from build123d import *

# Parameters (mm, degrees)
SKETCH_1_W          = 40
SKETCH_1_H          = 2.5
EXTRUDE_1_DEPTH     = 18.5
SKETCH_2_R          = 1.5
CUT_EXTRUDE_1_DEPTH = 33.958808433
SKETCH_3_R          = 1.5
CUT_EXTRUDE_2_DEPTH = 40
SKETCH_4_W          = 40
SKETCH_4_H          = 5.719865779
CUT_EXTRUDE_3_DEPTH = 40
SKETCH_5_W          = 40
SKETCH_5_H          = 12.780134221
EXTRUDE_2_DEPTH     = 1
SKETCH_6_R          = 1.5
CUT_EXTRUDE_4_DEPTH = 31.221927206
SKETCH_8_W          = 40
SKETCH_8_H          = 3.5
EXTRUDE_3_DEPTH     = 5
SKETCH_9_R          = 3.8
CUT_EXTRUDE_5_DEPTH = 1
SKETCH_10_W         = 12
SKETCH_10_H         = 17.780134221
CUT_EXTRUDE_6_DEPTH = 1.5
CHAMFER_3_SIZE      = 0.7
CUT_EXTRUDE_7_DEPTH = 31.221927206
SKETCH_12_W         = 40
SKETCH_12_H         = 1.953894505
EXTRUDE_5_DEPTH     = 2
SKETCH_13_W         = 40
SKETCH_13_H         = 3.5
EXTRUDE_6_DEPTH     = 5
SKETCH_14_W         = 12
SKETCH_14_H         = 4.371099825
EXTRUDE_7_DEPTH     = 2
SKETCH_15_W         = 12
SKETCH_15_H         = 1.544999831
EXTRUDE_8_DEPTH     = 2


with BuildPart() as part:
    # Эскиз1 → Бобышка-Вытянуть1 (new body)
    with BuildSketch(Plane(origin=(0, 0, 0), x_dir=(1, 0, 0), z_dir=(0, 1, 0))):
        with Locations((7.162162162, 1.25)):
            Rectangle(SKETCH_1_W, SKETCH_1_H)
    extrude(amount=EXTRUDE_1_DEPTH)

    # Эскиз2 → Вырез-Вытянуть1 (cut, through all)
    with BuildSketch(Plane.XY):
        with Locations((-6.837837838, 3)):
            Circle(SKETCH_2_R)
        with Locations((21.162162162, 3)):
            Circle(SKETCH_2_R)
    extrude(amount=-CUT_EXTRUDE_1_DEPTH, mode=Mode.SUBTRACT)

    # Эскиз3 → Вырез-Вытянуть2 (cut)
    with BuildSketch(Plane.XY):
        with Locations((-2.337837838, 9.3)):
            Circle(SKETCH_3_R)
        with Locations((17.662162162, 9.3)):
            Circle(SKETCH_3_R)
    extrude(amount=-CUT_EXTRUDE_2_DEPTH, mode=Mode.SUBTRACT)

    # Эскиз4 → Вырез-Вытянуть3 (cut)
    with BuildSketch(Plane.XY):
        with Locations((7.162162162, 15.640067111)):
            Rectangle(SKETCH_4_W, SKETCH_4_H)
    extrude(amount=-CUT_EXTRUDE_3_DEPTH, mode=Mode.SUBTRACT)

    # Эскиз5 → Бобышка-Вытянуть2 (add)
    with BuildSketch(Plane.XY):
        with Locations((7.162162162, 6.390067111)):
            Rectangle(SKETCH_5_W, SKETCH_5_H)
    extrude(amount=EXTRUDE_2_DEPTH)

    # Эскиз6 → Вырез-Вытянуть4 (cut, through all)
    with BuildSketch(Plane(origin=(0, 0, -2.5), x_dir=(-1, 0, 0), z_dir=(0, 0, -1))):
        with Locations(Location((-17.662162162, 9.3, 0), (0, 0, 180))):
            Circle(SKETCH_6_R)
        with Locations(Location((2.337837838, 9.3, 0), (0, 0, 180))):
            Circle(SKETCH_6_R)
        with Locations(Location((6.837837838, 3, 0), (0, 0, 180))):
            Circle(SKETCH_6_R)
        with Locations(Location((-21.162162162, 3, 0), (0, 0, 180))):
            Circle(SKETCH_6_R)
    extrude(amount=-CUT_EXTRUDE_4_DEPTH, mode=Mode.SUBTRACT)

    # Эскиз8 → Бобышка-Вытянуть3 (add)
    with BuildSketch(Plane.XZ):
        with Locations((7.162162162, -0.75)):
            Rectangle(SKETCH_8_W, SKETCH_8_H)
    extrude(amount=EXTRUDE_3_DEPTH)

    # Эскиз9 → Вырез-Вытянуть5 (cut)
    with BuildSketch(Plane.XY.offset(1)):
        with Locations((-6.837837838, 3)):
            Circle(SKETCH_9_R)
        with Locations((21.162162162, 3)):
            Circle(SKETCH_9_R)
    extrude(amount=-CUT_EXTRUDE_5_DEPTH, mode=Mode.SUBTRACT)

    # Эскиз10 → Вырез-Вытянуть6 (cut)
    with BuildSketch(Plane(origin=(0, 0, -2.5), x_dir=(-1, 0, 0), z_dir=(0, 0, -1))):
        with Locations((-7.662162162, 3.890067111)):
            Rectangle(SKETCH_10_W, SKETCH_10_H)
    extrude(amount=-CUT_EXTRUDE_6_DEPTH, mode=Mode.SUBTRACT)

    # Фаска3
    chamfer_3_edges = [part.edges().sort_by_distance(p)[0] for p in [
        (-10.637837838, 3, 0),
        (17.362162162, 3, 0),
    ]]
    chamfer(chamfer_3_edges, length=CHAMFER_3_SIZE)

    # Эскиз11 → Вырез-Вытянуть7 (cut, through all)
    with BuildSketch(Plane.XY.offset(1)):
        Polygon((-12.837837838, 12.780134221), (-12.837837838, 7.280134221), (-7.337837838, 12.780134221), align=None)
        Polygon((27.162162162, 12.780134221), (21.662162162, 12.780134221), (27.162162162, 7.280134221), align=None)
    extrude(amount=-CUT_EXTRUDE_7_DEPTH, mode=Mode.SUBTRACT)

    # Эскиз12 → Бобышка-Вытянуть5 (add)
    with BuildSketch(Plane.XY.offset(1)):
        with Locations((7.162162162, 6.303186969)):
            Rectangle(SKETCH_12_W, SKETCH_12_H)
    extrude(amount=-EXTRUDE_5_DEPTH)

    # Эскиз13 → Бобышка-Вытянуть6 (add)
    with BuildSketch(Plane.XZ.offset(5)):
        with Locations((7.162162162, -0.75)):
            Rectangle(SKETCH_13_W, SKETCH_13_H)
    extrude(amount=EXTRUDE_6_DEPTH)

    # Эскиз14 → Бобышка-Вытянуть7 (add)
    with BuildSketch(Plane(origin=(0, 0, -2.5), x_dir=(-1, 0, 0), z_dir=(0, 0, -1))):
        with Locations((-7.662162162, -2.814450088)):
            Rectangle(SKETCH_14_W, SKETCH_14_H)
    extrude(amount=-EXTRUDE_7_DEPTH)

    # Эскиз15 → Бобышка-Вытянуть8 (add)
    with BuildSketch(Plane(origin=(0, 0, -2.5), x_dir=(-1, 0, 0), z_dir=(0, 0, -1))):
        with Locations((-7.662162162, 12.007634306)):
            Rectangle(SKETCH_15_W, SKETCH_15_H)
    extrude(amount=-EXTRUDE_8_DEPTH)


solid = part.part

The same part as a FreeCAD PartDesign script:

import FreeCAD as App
import Part
import Sketcher

V = App.Vector


def edges_at(feature, points):
    """Names of the edges that pass closest to the given points."""
    edges = feature.Shape.Edges
    near = lambda p: min(range(len(edges)), key=lambda i: edges[i].distToShape(Part.Vertex(*p))[0])
    return sorted({f"Edge{near(p) + 1}" for p in points})

doc = App.newDocument("Part")
body = doc.addObject("PartDesign::Body", "Body")

# Sketch on XZ plane
sketch1 = body.newObject("Sketcher::SketchObject", "Sketch")
sketch1.AttachmentSupport = (doc.getObject("XZ_Plane"), [""])
sketch1.MapMode = "FlatFace"
sketch1.addGeometry(Part.LineSegment(V(-12.8, -2.5, 0), V(-12.8, 0, 0)), False)
sketch1.addGeometry(Part.LineSegment(V(-12.8, 0, 0), V(27.2, 0, 0)), False)
sketch1.addGeometry(Part.LineSegment(V(27.2, 0, 0), V(27.2, -2.5, 0)), False)
sketch1.addGeometry(Part.LineSegment(V(27.2, -2.5, 0), V(-12.8, -2.5, 0)), False)
sketch1.addConstraint(Sketcher.Constraint("Coincident", 0, 2, 1, 1))
sketch1.addConstraint(Sketcher.Constraint("Coincident", 1, 2, 2, 1))
sketch1.addConstraint(Sketcher.Constraint("Coincident", 2, 2, 3, 1))
sketch1.addConstraint(Sketcher.Constraint("Coincident", 3, 2, 0, 1))
sketch1.addConstraint(Sketcher.Constraint("Vertical", 0))
sketch1.addConstraint(Sketcher.Constraint("Horizontal", 1))
sketch1.addConstraint(Sketcher.Constraint("Vertical", 2))
sketch1.addConstraint(Sketcher.Constraint("Horizontal", 3))
sketch1.addConstraint(Sketcher.Constraint("PointOnObject", 0, 2, -1))
sketch1.addConstraint(Sketcher.Constraint("DistanceX", 1, 1, 1, 2, 40.0))
sketch1.addConstraint(Sketcher.Constraint("DistanceY", 0, 1, 0, 2, 2.5))
sketch1.addConstraint(Sketcher.Constraint("DistanceX", 0, 2, -1, 1, 12.837838))
pad1 = body.newObject("PartDesign::Pad", "Pad")
pad1.Profile = sketch1
pad1.Length = 18.5
pad1.Reversed = True

# Sketch on XY plane
sketch2 = body.newObject("Sketcher::SketchObject", "Sketch001")
sketch2.AttachmentSupport = (doc.getObject("XY_Plane"), [""])
sketch2.MapMode = "FlatFace"
sketch2.addGeometry(Part.Circle(V(-6.8, 3, 0), V(0, 0, 1), 1.5), False)
sketch2.addGeometry(Part.Circle(V(21.2, 3, 0), V(0, 0, 1), 1.5), False)
sketch2.addConstraint(Sketcher.Constraint("Equal", 0, 1))
sketch2.addConstraint(Sketcher.Constraint("Horizontal", 0, 3, 1, 3))
sketch2.addConstraint(Sketcher.Constraint("Diameter", 0, 3.0))
sketch2.addConstraint(Sketcher.Constraint("DistanceY", -1, 1, 0, 3, 3.0))
sketch2.addConstraint(Sketcher.Constraint("DistanceX", 0, 3, 1, 3, 28.0))
sketch2.addConstraint(Sketcher.Constraint("DistanceX", 0, 3, -1, 1, 6.837838))
pocket1 = body.newObject("PartDesign::Pocket", "Pocket")
pocket1.Profile = sketch2
pocket1.Type = "ThroughAll"

# Sketch on XY plane
sketch3 = body.newObject("Sketcher::SketchObject", "Sketch002")
sketch3.AttachmentSupport = (doc.getObject("XY_Plane"), [""])
sketch3.MapMode = "FlatFace"
sketch3.addGeometry(Part.Circle(V(-2.3, 9.3, 0), V(0, 0, 1), 1.5), False)
sketch3.addGeometry(Part.Circle(V(17.7, 9.3, 0), V(0, 0, 1), 1.5), False)
sketch3.addConstraint(Sketcher.Constraint("Equal", 0, 1))
sketch3.addConstraint(Sketcher.Constraint("Horizontal", 0, 3, 1, 3))
sketch3.addConstraint(Sketcher.Constraint("Diameter", 0, 3.0))
sketch3.addConstraint(Sketcher.Constraint("DistanceX", 0, 3, 1, 3, 20.0))
sketch3.addConstraint(Sketcher.Constraint("DistanceY", -1, 1, 0, 3, 9.3))
sketch3.addConstraint(Sketcher.Constraint("DistanceX", 0, 3, -1, 1, 2.337838))
pocket2 = body.newObject("PartDesign::Pocket", "Pocket001")
pocket2.Profile = sketch3
pocket2.Length = 40

# Sketch on XY plane
sketch4 = body.newObject("Sketcher::SketchObject", "Sketch003")
sketch4.AttachmentSupport = (doc.getObject("XY_Plane"), [""])
sketch4.MapMode = "FlatFace"
sketch4.addGeometry(Part.LineSegment(V(-13, 19, 0), V(-13, 13, 0)), False)
sketch4.addGeometry(Part.LineSegment(V(-13, 13, 0), V(27, 13, 0)), False)
sketch4.addGeometry(Part.LineSegment(V(27, 13, 0), V(27, 19, 0)), False)
sketch4.addGeometry(Part.LineSegment(V(27, 19, 0), V(-13, 19, 0)), False)
sketch4.addConstraint(Sketcher.Constraint("Coincident", 0, 2, 1, 1))
sketch4.addConstraint(Sketcher.Constraint("Coincident", 1, 2, 2, 1))
sketch4.addConstraint(Sketcher.Constraint("Coincident", 2, 2, 3, 1))
sketch4.addConstraint(Sketcher.Constraint("Coincident", 3, 2, 0, 1))
sketch4.addConstraint(Sketcher.Constraint("Vertical", 0))
sketch4.addConstraint(Sketcher.Constraint("Horizontal", 1))
sketch4.addConstraint(Sketcher.Constraint("Vertical", 2))
sketch4.addConstraint(Sketcher.Constraint("Horizontal", 3))
sketch4.addConstraint(Sketcher.Constraint("DistanceX", 1, 1, 1, 2, 40.0))
sketch4.addConstraint(Sketcher.Constraint("DistanceY", -1, 1, 2, 2, 18.5))
sketch4.addConstraint(Sketcher.Constraint("DistanceY", 0, 2, 0, 1, 5.719866))
sketch4.addConstraint(Sketcher.Constraint("DistanceX", 0, 2, -1, 1, 12.837838))
pocket3 = body.newObject("PartDesign::Pocket", "Pocket002")
pocket3.Profile = sketch4
pocket3.Length = 40

# Sketch on XY plane
sketch5 = body.newObject("Sketcher::SketchObject", "Sketch004")
sketch5.AttachmentSupport = (doc.getObject("XY_Plane"), [""])
sketch5.MapMode = "FlatFace"
sketch5.addGeometry(Part.LineSegment(V(-13, 13, 0), V(-13, 0, 0)), False)
sketch5.addGeometry(Part.LineSegment(V(-13, 0, 0), V(27, 0, 0)), False)
sketch5.addGeometry(Part.LineSegment(V(27, 0, 0), V(27, 13, 0)), False)
sketch5.addGeometry(Part.LineSegment(V(27, 13, 0), V(-13, 13, 0)), False)
sketch5.addConstraint(Sketcher.Constraint("Coincident", 0, 2, 1, 1))
sketch5.addConstraint(Sketcher.Constraint("Coincident", 1, 2, 2, 1))
sketch5.addConstraint(Sketcher.Constraint("Coincident", 2, 2, 3, 1))
sketch5.addConstraint(Sketcher.Constraint("Coincident", 3, 2, 0, 1))
sketch5.addConstraint(Sketcher.Constraint("Vertical", 0))
sketch5.addConstraint(Sketcher.Constraint("Horizontal", 1))
sketch5.addConstraint(Sketcher.Constraint("Vertical", 2))
sketch5.addConstraint(Sketcher.Constraint("Horizontal", 3))
sketch5.addConstraint(Sketcher.Constraint("PointOnObject", 0, 2, -1))
sketch5.addConstraint(Sketcher.Constraint("DistanceX", 1, 1, 1, 2, 40.0))
sketch5.addConstraint(Sketcher.Constraint("DistanceY", 0, 2, 0, 1, 12.780134))
sketch5.addConstraint(Sketcher.Constraint("DistanceX", 0, 2, -1, 1, 12.837838))
pad2 = body.newObject("PartDesign::Pad", "Pad001")
pad2.Profile = sketch5
pad2.Length = 1

# Sketch on XY plane
sketch6 = body.newObject("Sketcher::SketchObject", "Sketch005")
sketch6.AttachmentSupport = (doc.getObject("XY_Plane"), [""])
sketch6.MapMode = "FlatFace"
sketch6.AttachmentOffset = App.Placement(V(0, 0, -2.5), App.Rotation())
sketch6.addGeometry(Part.Circle(V(17.7, 9.3, 0), V(0, 0, 1), 1.5), False)
sketch6.addGeometry(Part.Circle(V(-2.3, 9.3, 0), V(0, 0, 1), 1.5), False)
sketch6.addGeometry(Part.Circle(V(-6.8, 3, 0), V(0, 0, 1), 1.5), False)
sketch6.addGeometry(Part.Circle(V(21.2, 3, 0), V(0, 0, 1), 1.5), False)
sketch6.addConstraint(Sketcher.Constraint("Equal", 0, 1))
sketch6.addConstraint(Sketcher.Constraint("Equal", 1, 2))
sketch6.addConstraint(Sketcher.Constraint("Equal", 2, 3))
sketch6.addConstraint(Sketcher.Constraint("Horizontal", 0, 3, 1, 3))
sketch6.addConstraint(Sketcher.Constraint("Horizontal", 2, 3, 3, 3))
sketch6.addConstraint(Sketcher.Constraint("Diameter", 0, 3.0))
sketch6.addConstraint(Sketcher.Constraint("DistanceY", -1, 1, 2, 3, 3.0))
sketch6.addConstraint(Sketcher.Constraint("DistanceX", 1, 3, 0, 3, 20.0))
sketch6.addConstraint(Sketcher.Constraint("DistanceX", 2, 3, 3, 3, 28.0))
sketch6.addConstraint(Sketcher.Constraint("DistanceY", -1, 1, 0, 3, 9.3))
sketch6.addConstraint(Sketcher.Constraint("DistanceX", 2, 3, 1, 3, 4.5))
sketch6.addConstraint(Sketcher.Constraint("DistanceX", -1, 1, 0, 3, 17.662162))
pocket4 = body.newObject("PartDesign::Pocket", "Pocket003")
pocket4.Profile = sketch6
pocket4.Type = "ThroughAll"
pocket4.Reversed = True

# Sketch on XZ plane
sketch7 = body.newObject("Sketcher::SketchObject", "Sketch006")
sketch7.AttachmentSupport = (doc.getObject("XZ_Plane"), [""])
sketch7.MapMode = "FlatFace"
sketch7.addGeometry(Part.LineSegment(V(-12.8, 1, 0), V(-12.8, -2.5, 0)), False)
sketch7.addGeometry(Part.LineSegment(V(-12.8, -2.5, 0), V(27.2, -2.5, 0)), False)
sketch7.addGeometry(Part.LineSegment(V(27.2, -2.5, 0), V(27.2, 1, 0)), False)
sketch7.addGeometry(Part.LineSegment(V(27.2, 1, 0), V(-12.8, 1, 0)), False)
sketch7.addConstraint(Sketcher.Constraint("Coincident", 0, 2, 1, 1))
sketch7.addConstraint(Sketcher.Constraint("Coincident", 1, 2, 2, 1))
sketch7.addConstraint(Sketcher.Constraint("Coincident", 2, 2, 3, 1))
sketch7.addConstraint(Sketcher.Constraint("Coincident", 3, 2, 0, 1))
sketch7.addConstraint(Sketcher.Constraint("Vertical", 0))
sketch7.addConstraint(Sketcher.Constraint("Horizontal", 1))
sketch7.addConstraint(Sketcher.Constraint("Vertical", 2))
sketch7.addConstraint(Sketcher.Constraint("Horizontal", 3))
sketch7.addConstraint(Sketcher.Constraint("DistanceX", 1, 1, 1, 2, 40.0))
sketch7.addConstraint(Sketcher.Constraint("DistanceY", 0, 2, 0, 1, 3.5))
sketch7.addConstraint(Sketcher.Constraint("DistanceY", -1, 1, 2, 2, 1.0))
sketch7.addConstraint(Sketcher.Constraint("DistanceX", 0, 2, -1, 1, 12.837838))
pad3 = body.newObject("PartDesign::Pad", "Pad002")
pad3.Profile = sketch7
pad3.Length = 5

# Sketch on XY plane
sketch8 = body.newObject("Sketcher::SketchObject", "Sketch007")
sketch8.AttachmentSupport = (doc.getObject("XY_Plane"), [""])
sketch8.MapMode = "FlatFace"
sketch8.AttachmentOffset = App.Placement(V(0, 0, 1), App.Rotation())
sketch8.addGeometry(Part.Circle(V(-6.8, 3, 0), V(0, 0, 1), 3.8), False)
sketch8.addGeometry(Part.Circle(V(21.2, 3, 0), V(0, 0, 1), 3.8), False)
sketch8.addConstraint(Sketcher.Constraint("Equal", 0, 1))
sketch8.addConstraint(Sketcher.Constraint("Horizontal", 0, 3, 1, 3))
sketch8.addConstraint(Sketcher.Constraint("Diameter", 0, 7.6))
sketch8.addConstraint(Sketcher.Constraint("DistanceY", -1, 1, 0, 3, 3.0))
sketch8.addConstraint(Sketcher.Constraint("DistanceX", 0, 3, 1, 3, 28.0))
sketch8.addConstraint(Sketcher.Constraint("DistanceX", 0, 3, -1, 1, 6.837838))
pocket5 = body.newObject("PartDesign::Pocket", "Pocket004")
pocket5.Profile = sketch8
pocket5.Length = 1

# Sketch on XY plane
sketch9 = body.newObject("Sketcher::SketchObject", "Sketch008")
sketch9.AttachmentSupport = (doc.getObject("XY_Plane"), [""])
sketch9.MapMode = "FlatFace"
sketch9.AttachmentOffset = App.Placement(V(0, 0, -2.5), App.Rotation())
sketch9.addGeometry(Part.LineSegment(V(14, 13, 0), V(14, -5, 0)), False)
sketch9.addGeometry(Part.LineSegment(V(14, -5, 0), V(2, -5, 0)), False)
sketch9.addGeometry(Part.LineSegment(V(2, -5, 0), V(2, 13, 0)), False)
sketch9.addGeometry(Part.LineSegment(V(2, 13, 0), V(14, 13, 0)), False)
sketch9.addConstraint(Sketcher.Constraint("Coincident", 0, 2, 1, 1))
sketch9.addConstraint(Sketcher.Constraint("Coincident", 1, 2, 2, 1))
sketch9.addConstraint(Sketcher.Constraint("Coincident", 2, 2, 3, 1))
sketch9.addConstraint(Sketcher.Constraint("Coincident", 3, 2, 0, 1))
sketch9.addConstraint(Sketcher.Constraint("Vertical", 0))
sketch9.addConstraint(Sketcher.Constraint("Horizontal", 1))
sketch9.addConstraint(Sketcher.Constraint("Vertical", 2))
sketch9.addConstraint(Sketcher.Constraint("Horizontal", 3))
sketch9.addConstraint(Sketcher.Constraint("DistanceX", 1, 2, 1, 1, 12.0))
sketch9.addConstraint(Sketcher.Constraint("DistanceY", 0, 2, -1, 1, 5.0))
sketch9.addConstraint(Sketcher.Constraint("DistanceY", 0, 2, 0, 1, 17.780134))
sketch9.addConstraint(Sketcher.Constraint("DistanceX", -1, 1, 0, 2, 13.662162))
pocket6 = body.newObject("PartDesign::Pocket", "Pocket005")
pocket6.Profile = sketch9
pocket6.Length = 1.5
pocket6.Reversed = True
doc.recompute()

chamfer = body.newObject("PartDesign::Chamfer", "Chamfer")
chamfer.Base = (pocket6, edges_at(pocket6, [(-10.638, 3, 0), (17.362, 3, 0)]))
chamfer.Size = 0.7

# Sketch on XY plane
sketch10 = body.newObject("Sketcher::SketchObject", "Sketch009")
sketch10.AttachmentSupport = (doc.getObject("XY_Plane"), [""])
sketch10.MapMode = "FlatFace"
sketch10.AttachmentOffset = App.Placement(V(0, 0, 1), App.Rotation())
sketch10.addGeometry(Part.LineSegment(V(-13, 13, 0), V(-13, 7, 0)), False)
sketch10.addGeometry(Part.LineSegment(V(-13, 7, 0), V(-7, 13, 0)), False)
sketch10.addGeometry(Part.LineSegment(V(-7, 13, 0), V(-13, 13, 0)), False)
sketch10.addGeometry(Part.LineSegment(V(27, 13, 0), V(22, 13, 0)), False)
sketch10.addGeometry(Part.LineSegment(V(22, 13, 0), V(27, 7, 0)), False)
sketch10.addGeometry(Part.LineSegment(V(27, 7, 0), V(27, 13, 0)), False)
sketch10.addConstraint(Sketcher.Constraint("Coincident", 0, 2, 1, 1))
sketch10.addConstraint(Sketcher.Constraint("Coincident", 1, 2, 2, 1))
sketch10.addConstraint(Sketcher.Constraint("Coincident", 2, 2, 0, 1))
sketch10.addConstraint(Sketcher.Constraint("Coincident", 3, 2, 4, 1))
sketch10.addConstraint(Sketcher.Constraint("Coincident", 4, 2, 5, 1))
sketch10.addConstraint(Sketcher.Constraint("Coincident", 5, 2, 3, 1))
sketch10.addConstraint(Sketcher.Constraint("Vertical", 0))
sketch10.addConstraint(Sketcher.Constraint("Horizontal", 2))
sketch10.addConstraint(Sketcher.Constraint("Horizontal", 3))
sketch10.addConstraint(Sketcher.Constraint("Vertical", 5))
sketch10.addConstraint(Sketcher.Constraint("Perpendicular", 1, 4))
sketch10.addConstraint(Sketcher.Constraint("Horizontal", 2, 2, 3, 2))
sketch10.addConstraint(Sketcher.Constraint("Horizontal", 0, 2, 4, 2))
sketch10.addConstraint(Sketcher.Constraint("Equal", 2, 3))
sketch10.addConstraint(Sketcher.Constraint("DistanceX", 2, 2, 2, 1, 5.5))
sketch10.addConstraint(Sketcher.Constraint("DistanceX", 1, 2, 3, 2, 29.0))
sketch10.addConstraint(Sketcher.Constraint("DistanceX", 0, 2, -1, 1, 12.837838))
sketch10.addConstraint(Sketcher.Constraint("DistanceY", -1, 1, 0, 2, 7.280134))
pocket7 = body.newObject("PartDesign::Pocket", "Pocket006")
pocket7.Profile = sketch10
pocket7.Type = "ThroughAll"

# Sketch on XY plane
sketch11 = body.newObject("Sketcher::SketchObject", "Sketch010")
sketch11.AttachmentSupport = (doc.getObject("XY_Plane"), [""])
sketch11.MapMode = "FlatFace"
sketch11.AttachmentOffset = App.Placement(V(0, 0, 1), App.Rotation())
sketch11.addGeometry(Part.LineSegment(V(-12.8, 7.3, 0), V(-12.8, 5.3, 0)), False)
sketch11.addGeometry(Part.LineSegment(V(-12.8, 5.3, 0), V(27.2, 5.3, 0)), False)
sketch11.addGeometry(Part.LineSegment(V(27.2, 5.3, 0), V(27.2, 7.3, 0)), False)
sketch11.addGeometry(Part.LineSegment(V(27.2, 7.3, 0), V(-12.8, 7.3, 0)), False)
sketch11.addConstraint(Sketcher.Constraint("Coincident", 0, 2, 1, 1))
sketch11.addConstraint(Sketcher.Constraint("Coincident", 1, 2, 2, 1))
sketch11.addConstraint(Sketcher.Constraint("Coincident", 2, 2, 3, 1))
sketch11.addConstraint(Sketcher.Constraint("Coincident", 3, 2, 0, 1))
sketch11.addConstraint(Sketcher.Constraint("Vertical", 0))
sketch11.addConstraint(Sketcher.Constraint("Horizontal", 1))
sketch11.addConstraint(Sketcher.Constraint("Vertical", 2))
sketch11.addConstraint(Sketcher.Constraint("Horizontal", 3))
sketch11.addConstraint(Sketcher.Constraint("DistanceX", 1, 1, 1, 2, 40.0))
sketch11.addConstraint(Sketcher.Constraint("DistanceY", 0, 2, 0, 1, 1.953895))
sketch11.addConstraint(Sketcher.Constraint("DistanceY", -1, 1, 0, 2, 5.32624))
sketch11.addConstraint(Sketcher.Constraint("DistanceX", 0, 2, -1, 1, 12.837838))
pad4 = body.newObject("PartDesign::Pad", "Pad003")
pad4.Profile = sketch11
pad4.Length = 2
pad4.Reversed = True

# Sketch on XZ plane
sketch12 = body.newObject("Sketcher::SketchObject", "Sketch011")
sketch12.AttachmentSupport = (doc.getObject("XZ_Plane"), [""])
sketch12.MapMode = "FlatFace"
sketch12.AttachmentOffset = App.Placement(V(0, 0, 5), App.Rotation())
sketch12.addGeometry(Part.LineSegment(V(-12.8, 1, 0), V(-12.8, -2.5, 0)), False)
sketch12.addGeometry(Part.LineSegment(V(-12.8, -2.5, 0), V(27.2, -2.5, 0)), False)
sketch12.addGeometry(Part.LineSegment(V(27.2, -2.5, 0), V(27.2, 1, 0)), False)
sketch12.addGeometry(Part.LineSegment(V(27.2, 1, 0), V(-12.8, 1, 0)), False)
sketch12.addConstraint(Sketcher.Constraint("Coincident", 0, 2, 1, 1))
sketch12.addConstraint(Sketcher.Constraint("Coincident", 1, 2, 2, 1))
sketch12.addConstraint(Sketcher.Constraint("Coincident", 2, 2, 3, 1))
sketch12.addConstraint(Sketcher.Constraint("Coincident", 3, 2, 0, 1))
sketch12.addConstraint(Sketcher.Constraint("Vertical", 0))
sketch12.addConstraint(Sketcher.Constraint("Horizontal", 1))
sketch12.addConstraint(Sketcher.Constraint("Vertical", 2))
sketch12.addConstraint(Sketcher.Constraint("Horizontal", 3))
sketch12.addConstraint(Sketcher.Constraint("DistanceX", 1, 1, 1, 2, 40.0))
sketch12.addConstraint(Sketcher.Constraint("DistanceY", 0, 2, 0, 1, 3.5))
sketch12.addConstraint(Sketcher.Constraint("DistanceY", -1, 1, 2, 2, 1.0))
sketch12.addConstraint(Sketcher.Constraint("DistanceX", 0, 2, -1, 1, 12.837838))
pad5 = body.newObject("PartDesign::Pad", "Pad004")
pad5.Profile = sketch12
pad5.Length = 5

# Sketch on XY plane
sketch13 = body.newObject("Sketcher::SketchObject", "Sketch012")
sketch13.AttachmentSupport = (doc.getObject("XY_Plane"), [""])
sketch13.MapMode = "FlatFace"
sketch13.AttachmentOffset = App.Placement(V(0, 0, -2.5), App.Rotation())
sketch13.addGeometry(Part.LineSegment(V(13.7, -0.6, 0), V(13.7, -5, 0)), False)
sketch13.addGeometry(Part.LineSegment(V(13.7, -5, 0), V(1.7, -5, 0)), False)
sketch13.addGeometry(Part.LineSegment(V(1.7, -5, 0), V(1.7, -0.6, 0)), False)
sketch13.addGeometry(Part.LineSegment(V(1.7, -0.6, 0), V(13.7, -0.6, 0)), False)
sketch13.addConstraint(Sketcher.Constraint("Coincident", 0, 2, 1, 1))
sketch13.addConstraint(Sketcher.Constraint("Coincident", 1, 2, 2, 1))
sketch13.addConstraint(Sketcher.Constraint("Coincident", 2, 2, 3, 1))
sketch13.addConstraint(Sketcher.Constraint("Coincident", 3, 2, 0, 1))
sketch13.addConstraint(Sketcher.Constraint("Vertical", 0))
sketch13.addConstraint(Sketcher.Constraint("Horizontal", 1))
sketch13.addConstraint(Sketcher.Constraint("Vertical", 2))
sketch13.addConstraint(Sketcher.Constraint("Horizontal", 3))
sketch13.addConstraint(Sketcher.Constraint("DistanceX", 1, 2, 1, 1, 12.0))
sketch13.addConstraint(Sketcher.Constraint("DistanceY", 0, 2, -1, 1, 5.0))
sketch13.addConstraint(Sketcher.Constraint("DistanceY", 0, 2, 0, 1, 4.3711))
sketch13.addConstraint(Sketcher.Constraint("DistanceX", -1, 1, 0, 2, 13.662162))
pad6 = body.newObject("PartDesign::Pad", "Pad005")
pad6.Profile = sketch13
pad6.Length = 2

# Sketch on XY plane
sketch14 = body.newObject("Sketcher::SketchObject", "Sketch013")
sketch14.AttachmentSupport = (doc.getObject("XY_Plane"), [""])
sketch14.MapMode = "FlatFace"
sketch14.AttachmentOffset = App.Placement(V(0, 0, -2.5), App.Rotation())
sketch14.addGeometry(Part.LineSegment(V(13.7, 12.8, 0), V(13.7, 11.2, 0)), False)
sketch14.addGeometry(Part.LineSegment(V(13.7, 11.2, 0), V(1.7, 11.2, 0)), False)
sketch14.addGeometry(Part.LineSegment(V(1.7, 11.2, 0), V(1.7, 12.8, 0)), False)
sketch14.addGeometry(Part.LineSegment(V(1.7, 12.8, 0), V(13.7, 12.8, 0)), False)
sketch14.addConstraint(Sketcher.Constraint("Coincident", 0, 2, 1, 1))
sketch14.addConstraint(Sketcher.Constraint("Coincident", 1, 2, 2, 1))
sketch14.addConstraint(Sketcher.Constraint("Coincident", 2, 2, 3, 1))
sketch14.addConstraint(Sketcher.Constraint("Coincident", 3, 2, 0, 1))
sketch14.addConstraint(Sketcher.Constraint("Vertical", 0))
sketch14.addConstraint(Sketcher.Constraint("Horizontal", 1))
sketch14.addConstraint(Sketcher.Constraint("Vertical", 2))
sketch14.addConstraint(Sketcher.Constraint("Horizontal", 3))
sketch14.addConstraint(Sketcher.Constraint("DistanceX", 1, 2, 1, 1, 12.0))
sketch14.addConstraint(Sketcher.Constraint("DistanceY", 0, 2, 0, 1, 1.545))
sketch14.addConstraint(Sketcher.Constraint("DistanceX", -1, 1, 0, 2, 13.662162))
sketch14.addConstraint(Sketcher.Constraint("DistanceY", -1, 1, 0, 2, 11.235134))
pad7 = body.newObject("PartDesign::Pad", "Pad006")
pad7.Profile = sketch14
pad7.Length = 2

doc.recompute()
